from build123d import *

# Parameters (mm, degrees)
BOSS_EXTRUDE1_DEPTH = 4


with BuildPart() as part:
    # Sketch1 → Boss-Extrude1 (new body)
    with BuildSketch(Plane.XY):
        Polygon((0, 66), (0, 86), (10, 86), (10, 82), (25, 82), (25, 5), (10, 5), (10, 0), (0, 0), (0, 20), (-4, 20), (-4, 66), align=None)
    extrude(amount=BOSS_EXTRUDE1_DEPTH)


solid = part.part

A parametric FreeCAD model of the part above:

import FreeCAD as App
import Part
import Sketcher

V = App.Vector

doc = App.newDocument("Part")
body = doc.addObject("PartDesign::Body", "Body")

# Sketch on XY plane
sketch1 = doc.addObject("Sketcher::SketchObject", "Sketch")
body.addObject(sketch1)
sketch1.AttachmentSupport = (doc.XY_Plane, [""])
sketch1.MapMode = "FlatFace"
sketch1.addGeometry([
    Part.LineSegment(V(0, 86, 0), V(0, 66, 0)),  # 0
    Part.LineSegment(V(0, 66, 0), V(-4, 66, 0)),  # 1
    Part.LineSegment(V(-4, 66, 0), V(-4, 20, 0)),  # 2
    Part.LineSegment(V(-4, 20, 0), V(0, 20, 0)),  # 3
    Part.LineSegment(V(0, 20, 0), V(0, 0, 0)),  # 4
    Part.LineSegment(V(0, 0, 0), V(10, 0, 0)),  # 5
    Part.LineSegment(V(10, 0, 0), V(10, 5, 0)),  # 6
    Part.LineSegment(V(10, 5, 0), V(25, 5, 0)),  # 7
    Part.LineSegment(V(25, 5, 0), V(25, 82, 0)),  # 8
    Part.LineSegment(V(25, 82, 0), V(10, 82, 0)),  # 9
    Part.LineSegment(V(10, 82, 0), V(10, 86, 0)),  # 10
    Part.LineSegment(V(10, 86, 0), V(0, 86, 0)),  # 11
], False)
sketch1.addConstraint([
    Sketcher.Constraint("Coincident", 0, 2, 1, 1),
    Sketcher.Constraint("Coincident", 1, 2, 2, 1),
    Sketcher.Constraint("Coincident", 2, 2, 3, 1),
    Sketcher.Constraint("Coincident", 3, 2, 4, 1),
    Sketcher.Constraint("Coincident", 4, 2, 5, 1),
    Sketcher.Constraint("Coincident", 5, 2, 6, 1),
    Sketcher.Constraint("Coincident", 6, 2, 7, 1),
    Sketcher.Constraint("Coincident", 7, 2, 8, 1),
    Sketcher.Constraint("Coincident", 8, 2, 9, 1),
    Sketcher.Constraint("Coincident", 9, 2, 10, 1),
    Sketcher.Constraint("Coincident", 10, 2, 11, 1),
    Sketcher.Constraint("Coincident", 11, 2, 0, 1),
    Sketcher.Constraint("Vertical", 0),
    Sketcher.Constraint("Horizontal", 1),
    Sketcher.Constraint("Vertical", 2),
    Sketcher.Constraint("Horizontal", 3),
    Sketcher.Constraint("Vertical", 4),
    Sketcher.Constraint("Horizontal", 5),
    Sketcher.Constraint("Vertical", 6),
    Sketcher.Constraint("Horizontal", 7),
    Sketcher.Constraint("Vertical", 8),
    Sketcher.Constraint("Horizontal", 9),
    Sketcher.Constraint("Vertical", 10),
    Sketcher.Constraint("Horizontal", 11),
    Sketcher.Constraint("Coincident", 4, 2, -1, 1),
    Sketcher.Constraint("PointOnObject", 0, 2, -2),
    Sketcher.Constraint("Vertical", 6, 2, 9, 2),
    Sketcher.Constraint("Equal", 0, 4),
    Sketcher.Constraint("Equal", 3, 10),
    Sketcher.Constraint("DistanceX", 1, 2, 1, 1, 4.0),
    Sketcher.Constraint("DistanceX", 5, 1, 5, 2, 10.0),
    Sketcher.Constraint("DistanceX", 7, 1, 7, 2, 15.0),
    Sketcher.Constraint("DistanceY", 0, 2, 0, 1, 20.0),
    Sketcher.Constraint("DistanceY", 2, 2, 2, 1, 46.0),
    Sketcher.Constraint("DistanceY", 6, 1, 6, 2, 5.0),
])
pad1 = doc.addObject("PartDesign::Pad", "Pad")
body.addObject(pad1)
pad1.Profile = sketch1
pad1.Length = 4

doc.recompute()
